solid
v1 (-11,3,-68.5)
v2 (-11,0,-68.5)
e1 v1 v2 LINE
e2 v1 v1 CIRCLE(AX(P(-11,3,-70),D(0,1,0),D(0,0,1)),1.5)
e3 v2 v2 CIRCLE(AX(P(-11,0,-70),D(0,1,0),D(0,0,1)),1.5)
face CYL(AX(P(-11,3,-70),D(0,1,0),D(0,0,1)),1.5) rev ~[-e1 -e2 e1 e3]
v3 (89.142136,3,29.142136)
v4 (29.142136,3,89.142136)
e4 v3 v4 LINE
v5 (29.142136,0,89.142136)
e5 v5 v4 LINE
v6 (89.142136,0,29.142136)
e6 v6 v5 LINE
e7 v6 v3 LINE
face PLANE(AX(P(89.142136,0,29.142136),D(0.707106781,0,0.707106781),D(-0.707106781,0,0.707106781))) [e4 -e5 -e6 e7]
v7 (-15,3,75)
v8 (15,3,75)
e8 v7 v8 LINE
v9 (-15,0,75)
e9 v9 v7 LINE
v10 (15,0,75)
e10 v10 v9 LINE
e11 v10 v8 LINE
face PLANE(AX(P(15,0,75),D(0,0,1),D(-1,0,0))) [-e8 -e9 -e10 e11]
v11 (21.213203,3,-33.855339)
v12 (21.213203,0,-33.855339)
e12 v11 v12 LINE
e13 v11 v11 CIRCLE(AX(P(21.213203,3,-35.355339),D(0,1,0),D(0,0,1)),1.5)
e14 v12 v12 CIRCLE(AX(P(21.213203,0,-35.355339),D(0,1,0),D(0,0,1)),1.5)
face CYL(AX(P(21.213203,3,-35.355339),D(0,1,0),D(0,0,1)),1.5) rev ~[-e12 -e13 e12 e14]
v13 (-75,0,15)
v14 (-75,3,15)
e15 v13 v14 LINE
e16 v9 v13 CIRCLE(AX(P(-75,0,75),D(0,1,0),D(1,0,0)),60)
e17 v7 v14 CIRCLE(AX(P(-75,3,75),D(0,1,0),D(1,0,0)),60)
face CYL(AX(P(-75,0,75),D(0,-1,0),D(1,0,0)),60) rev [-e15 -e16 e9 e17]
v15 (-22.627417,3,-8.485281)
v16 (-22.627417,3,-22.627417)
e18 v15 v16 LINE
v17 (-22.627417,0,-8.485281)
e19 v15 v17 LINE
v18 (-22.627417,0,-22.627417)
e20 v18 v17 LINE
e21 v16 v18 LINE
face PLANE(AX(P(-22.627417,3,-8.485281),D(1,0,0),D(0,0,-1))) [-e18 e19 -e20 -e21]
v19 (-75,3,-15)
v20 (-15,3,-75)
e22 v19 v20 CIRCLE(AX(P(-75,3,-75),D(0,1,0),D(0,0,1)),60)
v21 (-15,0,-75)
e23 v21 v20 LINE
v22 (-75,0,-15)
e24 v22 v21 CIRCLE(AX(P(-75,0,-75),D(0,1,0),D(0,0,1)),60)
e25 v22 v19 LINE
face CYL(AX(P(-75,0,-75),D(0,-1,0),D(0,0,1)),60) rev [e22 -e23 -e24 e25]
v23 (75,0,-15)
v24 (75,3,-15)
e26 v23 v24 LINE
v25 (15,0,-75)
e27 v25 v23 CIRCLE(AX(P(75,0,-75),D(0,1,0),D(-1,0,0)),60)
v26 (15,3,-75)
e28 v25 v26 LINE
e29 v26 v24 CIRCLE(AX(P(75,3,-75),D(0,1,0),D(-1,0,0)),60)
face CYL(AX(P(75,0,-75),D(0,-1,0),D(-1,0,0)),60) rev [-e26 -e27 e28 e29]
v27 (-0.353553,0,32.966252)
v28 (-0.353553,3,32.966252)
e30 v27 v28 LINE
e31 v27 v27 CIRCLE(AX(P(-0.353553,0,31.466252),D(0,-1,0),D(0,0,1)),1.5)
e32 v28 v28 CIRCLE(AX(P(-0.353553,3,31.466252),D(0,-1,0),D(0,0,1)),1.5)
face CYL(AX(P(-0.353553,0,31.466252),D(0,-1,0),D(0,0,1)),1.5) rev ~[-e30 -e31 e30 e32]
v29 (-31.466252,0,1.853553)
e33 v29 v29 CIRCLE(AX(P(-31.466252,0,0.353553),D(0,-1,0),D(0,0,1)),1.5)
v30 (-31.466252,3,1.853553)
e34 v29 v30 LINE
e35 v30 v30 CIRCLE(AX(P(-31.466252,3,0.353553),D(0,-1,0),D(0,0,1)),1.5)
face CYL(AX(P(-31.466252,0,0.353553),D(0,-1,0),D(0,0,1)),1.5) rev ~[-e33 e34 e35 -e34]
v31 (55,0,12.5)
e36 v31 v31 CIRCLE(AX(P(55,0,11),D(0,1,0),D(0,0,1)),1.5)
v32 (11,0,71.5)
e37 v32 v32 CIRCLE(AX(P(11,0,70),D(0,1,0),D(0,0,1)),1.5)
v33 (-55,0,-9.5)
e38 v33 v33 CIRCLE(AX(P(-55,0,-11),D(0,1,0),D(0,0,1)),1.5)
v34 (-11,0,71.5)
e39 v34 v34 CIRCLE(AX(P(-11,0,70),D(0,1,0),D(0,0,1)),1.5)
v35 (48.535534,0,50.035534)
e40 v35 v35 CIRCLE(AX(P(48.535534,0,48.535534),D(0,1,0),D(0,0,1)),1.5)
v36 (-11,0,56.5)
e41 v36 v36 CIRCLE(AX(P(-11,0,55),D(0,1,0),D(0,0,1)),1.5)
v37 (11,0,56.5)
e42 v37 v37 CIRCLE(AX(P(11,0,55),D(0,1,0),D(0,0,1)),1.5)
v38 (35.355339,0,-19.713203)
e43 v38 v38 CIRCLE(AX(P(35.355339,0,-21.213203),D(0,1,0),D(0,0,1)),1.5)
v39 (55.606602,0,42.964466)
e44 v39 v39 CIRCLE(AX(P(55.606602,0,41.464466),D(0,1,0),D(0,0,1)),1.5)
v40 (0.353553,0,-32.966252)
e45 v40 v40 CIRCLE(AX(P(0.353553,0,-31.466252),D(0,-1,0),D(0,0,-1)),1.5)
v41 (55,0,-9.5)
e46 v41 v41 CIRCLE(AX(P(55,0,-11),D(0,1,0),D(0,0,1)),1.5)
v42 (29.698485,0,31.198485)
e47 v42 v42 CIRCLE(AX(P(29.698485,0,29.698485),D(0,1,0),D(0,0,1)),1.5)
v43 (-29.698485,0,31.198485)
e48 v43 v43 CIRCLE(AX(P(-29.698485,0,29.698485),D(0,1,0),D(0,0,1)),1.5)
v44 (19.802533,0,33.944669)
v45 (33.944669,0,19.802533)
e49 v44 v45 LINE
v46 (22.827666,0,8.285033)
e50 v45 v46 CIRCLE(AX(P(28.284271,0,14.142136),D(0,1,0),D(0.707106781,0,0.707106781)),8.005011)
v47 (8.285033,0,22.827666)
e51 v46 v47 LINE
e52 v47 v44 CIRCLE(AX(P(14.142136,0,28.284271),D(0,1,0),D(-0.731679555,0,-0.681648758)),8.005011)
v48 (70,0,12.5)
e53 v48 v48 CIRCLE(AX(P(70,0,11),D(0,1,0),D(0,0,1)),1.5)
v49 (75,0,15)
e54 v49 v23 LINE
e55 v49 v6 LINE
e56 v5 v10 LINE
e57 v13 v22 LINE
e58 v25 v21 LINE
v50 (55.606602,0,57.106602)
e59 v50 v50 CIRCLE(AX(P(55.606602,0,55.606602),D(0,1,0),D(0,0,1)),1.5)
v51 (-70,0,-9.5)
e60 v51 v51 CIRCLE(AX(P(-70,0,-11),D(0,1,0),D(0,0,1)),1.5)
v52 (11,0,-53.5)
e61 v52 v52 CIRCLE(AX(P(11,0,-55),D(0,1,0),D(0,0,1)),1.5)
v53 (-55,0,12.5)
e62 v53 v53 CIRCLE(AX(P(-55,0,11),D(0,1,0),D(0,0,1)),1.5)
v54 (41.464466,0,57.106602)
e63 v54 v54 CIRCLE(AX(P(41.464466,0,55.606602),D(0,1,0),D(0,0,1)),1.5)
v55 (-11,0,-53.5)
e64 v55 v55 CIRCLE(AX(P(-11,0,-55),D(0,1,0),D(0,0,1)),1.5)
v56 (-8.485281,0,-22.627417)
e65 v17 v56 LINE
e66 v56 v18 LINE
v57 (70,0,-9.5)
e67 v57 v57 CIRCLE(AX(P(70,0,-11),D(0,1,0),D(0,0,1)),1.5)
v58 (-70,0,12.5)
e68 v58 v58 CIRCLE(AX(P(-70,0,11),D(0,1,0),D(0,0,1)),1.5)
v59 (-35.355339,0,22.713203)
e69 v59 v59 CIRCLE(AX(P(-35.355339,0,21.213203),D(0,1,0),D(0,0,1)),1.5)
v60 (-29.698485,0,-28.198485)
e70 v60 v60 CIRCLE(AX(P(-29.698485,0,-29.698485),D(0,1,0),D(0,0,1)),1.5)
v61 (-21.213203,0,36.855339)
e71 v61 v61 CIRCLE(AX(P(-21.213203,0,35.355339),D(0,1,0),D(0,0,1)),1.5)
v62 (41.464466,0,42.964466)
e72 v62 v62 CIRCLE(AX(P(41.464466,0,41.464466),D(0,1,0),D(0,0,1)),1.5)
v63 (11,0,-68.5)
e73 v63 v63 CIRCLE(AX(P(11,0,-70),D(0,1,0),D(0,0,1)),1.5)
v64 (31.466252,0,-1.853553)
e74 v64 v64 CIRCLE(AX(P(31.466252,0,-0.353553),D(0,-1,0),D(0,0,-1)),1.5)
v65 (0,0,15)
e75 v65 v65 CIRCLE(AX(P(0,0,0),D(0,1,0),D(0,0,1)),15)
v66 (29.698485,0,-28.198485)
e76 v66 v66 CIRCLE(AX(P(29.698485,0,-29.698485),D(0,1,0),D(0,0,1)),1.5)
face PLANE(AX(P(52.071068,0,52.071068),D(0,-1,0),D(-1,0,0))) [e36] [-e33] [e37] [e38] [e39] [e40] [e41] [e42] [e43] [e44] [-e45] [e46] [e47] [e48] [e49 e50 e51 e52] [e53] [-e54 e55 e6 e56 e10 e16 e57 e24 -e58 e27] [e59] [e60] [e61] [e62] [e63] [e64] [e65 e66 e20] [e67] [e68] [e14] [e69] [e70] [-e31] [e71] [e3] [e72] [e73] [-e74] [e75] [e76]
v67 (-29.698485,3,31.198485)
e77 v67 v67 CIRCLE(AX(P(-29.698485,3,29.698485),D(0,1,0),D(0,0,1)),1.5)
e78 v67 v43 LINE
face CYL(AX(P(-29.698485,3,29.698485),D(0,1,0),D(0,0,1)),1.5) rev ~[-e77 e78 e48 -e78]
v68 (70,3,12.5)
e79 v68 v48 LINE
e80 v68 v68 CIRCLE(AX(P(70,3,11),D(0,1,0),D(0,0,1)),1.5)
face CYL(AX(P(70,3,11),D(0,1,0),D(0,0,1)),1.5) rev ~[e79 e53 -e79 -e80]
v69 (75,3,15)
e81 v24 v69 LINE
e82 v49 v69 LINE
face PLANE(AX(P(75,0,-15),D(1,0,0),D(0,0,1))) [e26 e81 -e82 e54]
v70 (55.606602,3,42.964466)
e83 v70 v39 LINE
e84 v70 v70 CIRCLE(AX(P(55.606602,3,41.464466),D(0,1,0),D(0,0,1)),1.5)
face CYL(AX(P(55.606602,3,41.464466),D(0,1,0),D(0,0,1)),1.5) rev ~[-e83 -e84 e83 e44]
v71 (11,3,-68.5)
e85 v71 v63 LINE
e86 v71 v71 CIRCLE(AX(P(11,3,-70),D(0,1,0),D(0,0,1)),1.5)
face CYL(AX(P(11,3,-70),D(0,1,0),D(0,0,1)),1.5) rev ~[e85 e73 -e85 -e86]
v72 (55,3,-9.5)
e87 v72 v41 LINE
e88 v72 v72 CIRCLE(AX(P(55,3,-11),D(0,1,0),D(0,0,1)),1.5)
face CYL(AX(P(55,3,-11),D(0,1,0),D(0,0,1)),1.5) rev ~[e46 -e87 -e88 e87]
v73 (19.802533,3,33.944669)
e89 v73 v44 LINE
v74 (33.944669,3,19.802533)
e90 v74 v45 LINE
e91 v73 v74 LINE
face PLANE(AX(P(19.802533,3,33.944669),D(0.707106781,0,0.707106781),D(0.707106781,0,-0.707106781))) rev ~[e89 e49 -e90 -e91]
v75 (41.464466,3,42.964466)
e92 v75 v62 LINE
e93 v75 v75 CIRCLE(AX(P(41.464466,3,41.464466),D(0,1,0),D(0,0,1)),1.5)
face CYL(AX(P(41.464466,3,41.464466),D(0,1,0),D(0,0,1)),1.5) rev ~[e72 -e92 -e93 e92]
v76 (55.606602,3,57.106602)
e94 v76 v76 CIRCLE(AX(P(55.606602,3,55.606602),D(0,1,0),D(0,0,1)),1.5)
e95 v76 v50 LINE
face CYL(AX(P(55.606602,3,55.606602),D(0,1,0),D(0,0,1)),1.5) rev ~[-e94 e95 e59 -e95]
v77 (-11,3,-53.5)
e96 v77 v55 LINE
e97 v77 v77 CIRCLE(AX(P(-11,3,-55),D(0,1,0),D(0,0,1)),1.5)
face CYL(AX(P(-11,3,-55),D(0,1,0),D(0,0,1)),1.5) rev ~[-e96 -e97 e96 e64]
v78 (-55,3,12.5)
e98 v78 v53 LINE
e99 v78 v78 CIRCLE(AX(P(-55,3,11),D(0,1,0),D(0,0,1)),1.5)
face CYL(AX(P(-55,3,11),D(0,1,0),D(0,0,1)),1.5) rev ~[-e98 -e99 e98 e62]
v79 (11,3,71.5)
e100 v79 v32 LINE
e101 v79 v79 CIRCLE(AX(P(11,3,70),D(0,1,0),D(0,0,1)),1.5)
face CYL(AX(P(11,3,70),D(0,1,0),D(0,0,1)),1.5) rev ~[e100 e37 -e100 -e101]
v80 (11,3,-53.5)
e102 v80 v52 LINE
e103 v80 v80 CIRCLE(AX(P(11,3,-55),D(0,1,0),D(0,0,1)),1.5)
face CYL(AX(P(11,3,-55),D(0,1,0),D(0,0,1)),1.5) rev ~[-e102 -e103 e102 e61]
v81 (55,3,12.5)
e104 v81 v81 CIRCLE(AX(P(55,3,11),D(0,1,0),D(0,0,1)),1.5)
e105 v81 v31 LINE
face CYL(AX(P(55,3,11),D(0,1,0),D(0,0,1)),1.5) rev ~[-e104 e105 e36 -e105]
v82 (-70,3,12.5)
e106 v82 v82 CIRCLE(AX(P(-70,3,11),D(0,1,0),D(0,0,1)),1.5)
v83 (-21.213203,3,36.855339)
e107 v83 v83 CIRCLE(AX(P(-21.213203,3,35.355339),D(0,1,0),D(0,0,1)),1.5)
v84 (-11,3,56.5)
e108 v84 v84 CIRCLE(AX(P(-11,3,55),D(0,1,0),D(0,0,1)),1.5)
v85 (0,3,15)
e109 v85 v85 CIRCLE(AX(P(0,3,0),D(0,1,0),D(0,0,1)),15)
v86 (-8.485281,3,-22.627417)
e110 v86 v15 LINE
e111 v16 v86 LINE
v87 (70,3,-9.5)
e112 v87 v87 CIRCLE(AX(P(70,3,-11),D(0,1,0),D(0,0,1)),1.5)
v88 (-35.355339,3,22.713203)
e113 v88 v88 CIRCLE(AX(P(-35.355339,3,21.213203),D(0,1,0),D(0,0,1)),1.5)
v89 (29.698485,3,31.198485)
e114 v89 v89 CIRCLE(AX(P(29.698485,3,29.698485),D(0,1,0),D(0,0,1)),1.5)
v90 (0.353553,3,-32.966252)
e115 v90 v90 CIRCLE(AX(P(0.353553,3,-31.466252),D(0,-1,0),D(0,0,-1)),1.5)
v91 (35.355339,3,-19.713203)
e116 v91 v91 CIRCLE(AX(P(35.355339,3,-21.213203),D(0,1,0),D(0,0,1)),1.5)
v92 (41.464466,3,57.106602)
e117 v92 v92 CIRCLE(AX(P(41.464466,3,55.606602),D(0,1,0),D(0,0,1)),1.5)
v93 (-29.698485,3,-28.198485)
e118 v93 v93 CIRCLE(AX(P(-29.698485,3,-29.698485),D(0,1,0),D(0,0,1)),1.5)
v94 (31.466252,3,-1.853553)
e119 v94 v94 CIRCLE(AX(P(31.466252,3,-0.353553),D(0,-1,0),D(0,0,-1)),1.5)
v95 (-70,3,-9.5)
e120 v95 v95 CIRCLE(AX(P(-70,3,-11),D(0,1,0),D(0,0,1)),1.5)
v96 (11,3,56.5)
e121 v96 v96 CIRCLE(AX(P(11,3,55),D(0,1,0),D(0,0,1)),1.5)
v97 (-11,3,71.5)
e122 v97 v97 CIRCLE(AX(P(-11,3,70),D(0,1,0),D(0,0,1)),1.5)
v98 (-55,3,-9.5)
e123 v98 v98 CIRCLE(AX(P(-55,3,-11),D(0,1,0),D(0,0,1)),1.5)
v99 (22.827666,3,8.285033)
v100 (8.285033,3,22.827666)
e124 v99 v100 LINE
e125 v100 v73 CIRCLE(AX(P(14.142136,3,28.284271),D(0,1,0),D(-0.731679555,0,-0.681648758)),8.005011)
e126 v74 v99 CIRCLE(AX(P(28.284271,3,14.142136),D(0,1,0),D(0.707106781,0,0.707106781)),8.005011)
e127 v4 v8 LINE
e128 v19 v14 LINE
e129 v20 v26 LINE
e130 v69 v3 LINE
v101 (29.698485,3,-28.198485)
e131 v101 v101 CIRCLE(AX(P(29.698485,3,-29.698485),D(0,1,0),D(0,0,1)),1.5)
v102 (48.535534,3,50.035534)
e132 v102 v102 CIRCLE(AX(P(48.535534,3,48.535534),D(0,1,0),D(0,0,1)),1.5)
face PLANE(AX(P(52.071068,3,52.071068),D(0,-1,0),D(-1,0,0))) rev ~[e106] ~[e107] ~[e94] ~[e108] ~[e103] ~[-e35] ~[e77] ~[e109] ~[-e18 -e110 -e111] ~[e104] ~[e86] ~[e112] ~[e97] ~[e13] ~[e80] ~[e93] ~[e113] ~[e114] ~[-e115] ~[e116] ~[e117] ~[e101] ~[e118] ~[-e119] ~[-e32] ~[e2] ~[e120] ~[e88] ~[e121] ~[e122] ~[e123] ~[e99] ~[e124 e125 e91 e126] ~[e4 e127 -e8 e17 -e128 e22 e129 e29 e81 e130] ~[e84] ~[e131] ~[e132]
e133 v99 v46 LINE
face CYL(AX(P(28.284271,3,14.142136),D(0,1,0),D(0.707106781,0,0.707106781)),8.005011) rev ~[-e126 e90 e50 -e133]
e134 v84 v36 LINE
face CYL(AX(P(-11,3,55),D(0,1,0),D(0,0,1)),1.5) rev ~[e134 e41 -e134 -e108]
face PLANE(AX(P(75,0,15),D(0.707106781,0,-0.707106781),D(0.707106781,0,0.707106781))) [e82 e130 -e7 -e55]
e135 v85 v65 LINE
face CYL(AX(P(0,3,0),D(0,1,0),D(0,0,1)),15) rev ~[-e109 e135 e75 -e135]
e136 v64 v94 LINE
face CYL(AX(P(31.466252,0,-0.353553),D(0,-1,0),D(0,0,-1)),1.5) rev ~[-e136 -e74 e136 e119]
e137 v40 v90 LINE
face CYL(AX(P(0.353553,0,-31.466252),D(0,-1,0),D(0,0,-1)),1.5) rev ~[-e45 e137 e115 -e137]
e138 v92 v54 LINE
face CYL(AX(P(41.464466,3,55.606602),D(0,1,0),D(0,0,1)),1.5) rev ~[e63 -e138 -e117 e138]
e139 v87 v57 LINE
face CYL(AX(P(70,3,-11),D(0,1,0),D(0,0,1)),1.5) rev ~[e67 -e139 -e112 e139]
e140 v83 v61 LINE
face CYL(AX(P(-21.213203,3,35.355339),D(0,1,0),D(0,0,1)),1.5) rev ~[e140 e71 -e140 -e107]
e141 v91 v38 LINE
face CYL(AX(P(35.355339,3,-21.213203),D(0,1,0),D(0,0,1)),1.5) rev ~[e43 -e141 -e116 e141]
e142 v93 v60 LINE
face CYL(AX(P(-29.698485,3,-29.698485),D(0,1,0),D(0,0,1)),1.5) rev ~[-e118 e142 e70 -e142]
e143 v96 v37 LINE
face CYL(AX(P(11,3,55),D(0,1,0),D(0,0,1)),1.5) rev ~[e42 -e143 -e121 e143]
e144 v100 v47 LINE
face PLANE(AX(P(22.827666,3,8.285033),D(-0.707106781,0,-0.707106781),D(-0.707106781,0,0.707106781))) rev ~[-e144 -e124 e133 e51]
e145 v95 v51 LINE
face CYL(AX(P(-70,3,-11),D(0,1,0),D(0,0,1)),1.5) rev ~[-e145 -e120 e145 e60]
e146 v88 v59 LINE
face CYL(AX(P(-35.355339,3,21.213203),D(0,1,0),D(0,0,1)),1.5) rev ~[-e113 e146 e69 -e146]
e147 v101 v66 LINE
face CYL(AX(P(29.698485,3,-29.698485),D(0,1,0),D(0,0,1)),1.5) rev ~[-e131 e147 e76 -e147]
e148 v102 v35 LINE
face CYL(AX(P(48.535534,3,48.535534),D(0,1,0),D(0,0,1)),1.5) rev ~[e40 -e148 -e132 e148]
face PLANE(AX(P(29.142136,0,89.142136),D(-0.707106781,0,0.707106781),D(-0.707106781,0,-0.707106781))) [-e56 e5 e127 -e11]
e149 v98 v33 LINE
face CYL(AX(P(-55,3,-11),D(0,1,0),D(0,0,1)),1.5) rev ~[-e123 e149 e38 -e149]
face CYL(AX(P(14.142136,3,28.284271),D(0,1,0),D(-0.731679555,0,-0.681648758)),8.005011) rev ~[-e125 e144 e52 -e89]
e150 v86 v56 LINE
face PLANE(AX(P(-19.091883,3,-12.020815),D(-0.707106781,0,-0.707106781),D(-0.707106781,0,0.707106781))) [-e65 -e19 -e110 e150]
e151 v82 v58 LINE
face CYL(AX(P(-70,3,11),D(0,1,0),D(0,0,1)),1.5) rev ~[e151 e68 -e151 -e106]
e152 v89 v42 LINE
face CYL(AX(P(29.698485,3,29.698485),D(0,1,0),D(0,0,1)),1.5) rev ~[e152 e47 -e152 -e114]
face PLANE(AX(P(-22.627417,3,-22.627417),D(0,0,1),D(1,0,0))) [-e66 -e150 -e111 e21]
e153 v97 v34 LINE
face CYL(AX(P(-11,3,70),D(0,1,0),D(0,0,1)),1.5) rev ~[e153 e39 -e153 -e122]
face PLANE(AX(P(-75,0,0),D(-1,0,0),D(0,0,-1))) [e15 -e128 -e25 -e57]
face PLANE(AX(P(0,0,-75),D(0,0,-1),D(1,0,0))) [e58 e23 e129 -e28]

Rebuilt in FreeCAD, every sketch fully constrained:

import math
import FreeCAD as App
import Part
import Sketcher
from FreeCAD import Vector
Q = App.Units.Quantity


def add_polygon(sketch, points):
    """Adds a closed chain of lines whose ends are joined by coincident constraints."""
    first, n = sketch.GeometryCount, len(points)
    for a, b in zip(points, points[1:] + points[:1]):
        sketch.addGeometry(Part.LineSegment(App.Vector(*a, 0), App.Vector(*b, 0)), False)
    for i in range(n):
        sketch.addConstraint(Sketcher.Constraint("Coincident", first + i, 2, first + (i + 1) % n, 1))

doc = App.newDocument("Part")
body = doc.addObject("PartDesign::Body", "Body")

# Sketch on XZ plane
sketch1 = body.newObject("Sketcher::SketchObject", "Sketch")
sketch1.AttachmentSupport = (doc.getObject("XZ_Plane"), [""])
sketch1.MapMode = "FlatFace"
sketch1.addGeometry(Part.ArcOfCircle(Part.Circle(Vector(75, 75, 0), Vector(0, 0, 1), 60), math.radians(-180), math.radians(-90)), False)
sketch1.addGeometry(Part.LineSegment(Vector(75, 15, 0), Vector(75, -15, 0)), False)
sketch1.addGeometry(Part.ArcOfCircle(Part.Circle(Vector(75, -75, 0), Vector(0, 0, 1), 60), math.radians(90), math.radians(180)), False)
sketch1.addGeometry(Part.LineSegment(Vector(15, -75, 0), Vector(-15, -75, 0)), False)
sketch1.addGeometry(Part.ArcOfCircle(Part.Circle(Vector(-75, -75, 0), Vector(0, 0, 1), 60), math.radians(0), math.radians(90)), False)
sketch1.addGeometry(Part.LineSegment(Vector(-75, -15, 0), Vector(-75, 15, 0)), False)
sketch1.addGeometry(Part.ArcOfCircle(Part.Circle(Vector(-75, 75, 0), Vector(0, 0, 1), 60), math.radians(-90), math.radians(0)), False)
sketch1.addGeometry(Part.LineSegment(Vector(-15, 75, 0), Vector(15, 75, 0)), False)
sketch1.addGeometry(Part.Circle(Vector(11, 70, 0), Vector(0, 0, 1), 1.25), False)
sketch1.addGeometry(Part.Circle(Vector(70, 11, 0), Vector(0, 0, 1), 1.25), False)
sketch1.addGeometry(Part.Circle(Vector(11, -70, 0), Vector(0, 0, 1), 1.25), False)
sketch1.addGeometry(Part.Circle(Vector(70, -11, 0), Vector(0, 0, 1), 1.25), False)
sketch1.addGeometry(Part.Circle(Vector(-70, 11, 0), Vector(0, 0, 1), 1.25), False)
sketch1.addGeometry(Part.Circle(Vector(-11, 70, 0), Vector(0, 0, 1), 1.25), False)
sketch1.addGeometry(Part.Circle(Vector(-70, -11, 0), Vector(0, 0, 1), 1.25), False)
sketch1.addGeometry(Part.Circle(Vector(-11, -70, 0), Vector(0, 0, 1), 1.25), False)
sketch1.addConstraint(Sketcher.Constraint("Coincident", 0, 2, 1, 1))
sketch1.addConstraint(Sketcher.Constraint("Coincident", 1, 2, 2, 1))
sketch1.addConstraint(Sketcher.Constraint("Coincident", 2, 2, 3, 1))
sketch1.addConstraint(Sketcher.Constraint("Coincident", 3, 2, 4, 1))
sketch1.addConstraint(Sketcher.Constraint("Coincident", 4, 2, 5, 1))
sketch1.addConstraint(Sketcher.Constraint("Coincident", 5, 2, 6, 1))
sketch1.addConstraint(Sketcher.Constraint("Coincident", 6, 2, 7, 1))
sketch1.addConstraint(Sketcher.Constraint("Coincident", 7, 2, 0, 1))
sketch1.addConstraint(Sketcher.Constraint("Vertical", 1))
sketch1.addConstraint(Sketcher.Constraint("Horizontal", 3))
sketch1.addConstraint(Sketcher.Constraint("Vertical", 5))
sketch1.addConstraint(Sketcher.Constraint("Horizontal", 7))
sketch1.addConstraint(Sketcher.Constraint("Equal", 0, 2))
sketch1.addConstraint(Sketcher.Constraint("Equal", 2, 4))
sketch1.addConstraint(Sketcher.Constraint("Equal", 4, 6))
sketch1.addConstraint(Sketcher.Constraint("Equal", 8, 9))
sketch1.addConstraint(Sketcher.Constraint("Equal", 9, 10))
sketch1.addConstraint(Sketcher.Constraint("Equal", 10, 11))
sketch1.addConstraint(Sketcher.Constraint("Equal", 11, 12))
sketch1.addConstraint(Sketcher.Constraint("Equal", 12, 13))
sketch1.addConstraint(Sketcher.Constraint("Equal", 13, 14))
sketch1.addConstraint(Sketcher.Constraint("Equal", 14, 15))
sketch1.addConstraint(Sketcher.Constraint("Symmetric", 0, 3, 4, 3, -1, 1))
sketch1.addConstraint(Sketcher.Constraint("Symmetric", 2, 3, 6, 3, -1, 1))
sketch1.addConstraint(Sketcher.Constraint("Symmetric", 11, 3, 12, 3, -1, 1))
sketch1.addConstraint(Sketcher.Constraint("Symmetric", 10, 3, 13, 3, -1, 1))
sketch1.addConstraint(Sketcher.Constraint("Symmetric", 9, 3, 14, 3, -1, 1))
sketch1.addConstraint(Sketcher.Constraint("Symmetric", 8, 3, 15, 3, -1, 1))
sketch1.addConstraint(Sketcher.Constraint("Symmetric", 2, 3, 4, 3, -2))
sketch1.addConstraint(Sketcher.Constraint("Symmetric", 9, 3, 12, 3, -2))
sketch1.addConstraint(Sketcher.Constraint("Symmetric", 8, 3, 13, 3, -2))
sketch1.addConstraint(Sketcher.Constraint("Horizontal", 4, 3, 2, 2))
sketch1.addConstraint(Sketcher.Constraint("Horizontal", 0, 3, 6, 2))
sketch1.addConstraint(Sketcher.Constraint("Vertical", 2, 3, 0, 2))
sketch1.addConstraint(Sketcher.Constraint("Vertical", 6, 3, 4, 2))
sketch1.addConstraint(Sketcher.Constraint("Equal", 7, 1))
sketch1.addConstraint(Sketcher.Constraint("Radius", 0, Q("60 mm")))
sketch1.addConstraint(Sketcher.Constraint("Diameter", 8, Q("2.5 mm")))
sketch1.addConstraint(Sketcher.Constraint("DistanceX", 3, 2, 3, 1, Q("30 mm")))
sketch1.addConstraint(Sketcher.Constraint("DistanceX", -1, 1, 8, 3, Q("11 mm")))
sketch1.addConstraint(Sketcher.Constraint("DistanceY", -1, 1, 8, 3, Q("70 mm")))
sketch1.addConstraint(Sketcher.Constraint("DistanceX", -1, 1, 9, 3, Q("70 mm")))
sketch1.addConstraint(Sketcher.Constraint("DistanceY", -1, 1, 9, 3, Q("11 mm")))
pad1 = body.newObject("PartDesign::Pad", "Pad")
pad1.Profile = sketch1
pad1.Length = 3
pad1.Reversed = True

# Sketch on XZ plane
sketch2 = body.newObject("Sketcher::SketchObject", "Sketch001")
sketch2.AttachmentSupport = (doc.getObject("XZ_Plane"), [""])
sketch2.MapMode = "FlatFace"
sketch2.addGeometry(Part.Circle(Vector(0.353553, -31.466252, 0), Vector(0, 0, 1), 1.5), False)
sketch2.addGeometry(Part.Circle(Vector(31.466252, -0.353553, 0), Vector(0, 0, 1), 1.5), False)
sketch2.addGeometry(Part.Circle(Vector(-0.353553, 31.466252, 0), Vector(0, 0, 1), 1.5), False)
sketch2.addGeometry(Part.Circle(Vector(-31.466252, 0.353553, 0), Vector(0, 0, 1), 1.5), False)
sketch2.addConstraint(Sketcher.Constraint("Equal", 0, 1))
sketch2.addConstraint(Sketcher.Constraint("Equal", 1, 2))
sketch2.addConstraint(Sketcher.Constraint("Equal", 2, 3))
sketch2.addConstraint(Sketcher.Constraint("Symmetric", 0, 3, 2, 3, -1, 1))
sketch2.addConstraint(Sketcher.Constraint("Symmetric", 1, 3, 3, 3, -1, 1))
sketch2.addConstraint(Sketcher.Constraint("Diameter", 0, Q("3 mm")))
sketch2.addConstraint(Sketcher.Constraint("DistanceX", 0, 3, 1, 3, Q("31.112698 mm")))
sketch2.addConstraint(Sketcher.Constraint("DistanceY", 0, 3, 1, 3, Q("31.112698 mm")))
sketch2.addConstraint(Sketcher.Constraint("DistanceY", 0, 3, -1, 1, Q("31.466252 mm")))
sketch2.addConstraint(Sketcher.Constraint("DistanceX", -1, 1, 1, 3, Q("31.466252 mm")))
pocket1 = body.newObject("PartDesign::Pocket", "Pocket")
pocket1.Profile = sketch2
pocket1.Length = 3

# Sketch on XZ plane
sketch3 = body.newObject("Sketcher::SketchObject", "Sketch002")
sketch3.AttachmentSupport = (doc.getObject("XZ_Plane"), [""])
sketch3.MapMode = "FlatFace"
sketch3.AttachmentOffset = App.Placement(Vector(0, 0, -3), App.Rotation())
add_polygon(sketch3, [(-12.020815, -19.091883), (-22.627417, -22.627417), (-19.091883, -12.020815)])  # lines 0-2
sketch3.addConstraint(Sketcher.Constraint("Equal", 0, 1))
sketch3.addConstraint(Sketcher.Constraint("Angle", 2, Q("-45 deg")))
sketch3.addConstraint(Sketcher.Constraint("Distance", 2, Q("10 mm")))
sketch3.addConstraint(Sketcher.Constraint("DistanceY", 0, 2, 1, 2, Q("10.606602 mm")))
sketch3.addConstraint(Sketcher.Constraint("DistanceX", 0, 2, -1, 1, Q("22.627417 mm")))
sketch3.addConstraint(Sketcher.Constraint("DistanceY", 0, 2, -1, 1, Q("22.627417 mm")))
pocket2 = body.newObject("PartDesign::Pocket", "Pocket001")
pocket2.Profile = sketch3
pocket2.Length = 3
pocket2.Reversed = True

# Sketch on XZ plane
sketch4 = body.newObject("Sketcher::SketchObject", "Sketch003")
sketch4.AttachmentSupport = (doc.getObject("XZ_Plane"), [""])
sketch4.MapMode = "FlatFace"
sketch4.AttachmentOffset = App.Placement(Vector(0, 0, -3), App.Rotation())
sketch4.addGeometry(Part.ArcOfCircle(Part.Circle(Vector(28.284271, 14.142136, 0), Vector(0, 0, 1), 8.005011), math.radians(-132.972618), math.radians(45)), False)
sketch4.addGeometry(Part.LineSegment(Vector(22.827666, 8.285033, 0), Vector(8.285033, 22.827666, 0)), False)
sketch4.addGeometry(Part.ArcOfCircle(Part.Circle(Vector(14.142136, 28.284271, 0), Vector(0, 0, 1), 8.005011), math.radians(45), math.radians(222.972618)), False)
sketch4.addGeometry(Part.LineSegment(Vector(19.802533, 33.944669, 0), Vector(33.944669, 19.802533, 0)), False)
sketch4.addConstraint(Sketcher.Constraint("Coincident", 0, 1, 1, 1))
sketch4.addConstraint(Sketcher.Constraint("Coincident", 1, 2, 2, 2))
sketch4.addConstraint(Sketcher.Constraint("Tangent", 2, 1, 3, 1))
sketch4.addConstraint(Sketcher.Constraint("Tangent", 3, 2, 0, 2))
sketch4.addConstraint(Sketcher.Constraint("Equal", 0, 2))
sketch4.addConstraint(Sketcher.Constraint("Parallel", 1, 3))
sketch4.addConstraint(Sketcher.Constraint("Angle", 1, Q("135 deg")))
sketch4.addConstraint(Sketcher.Constraint("Distance", 3, Q("20 mm")))
sketch4.addConstraint(Sketcher.Constraint("Radius", 0, Q("8.005011 mm")))
sketch4.addConstraint(Sketcher.Constraint("DistanceX", 1, 2, 2, 1, Q("11.5175 mm")))
sketch4.addConstraint(Sketcher.Constraint("DistanceX", -1, 1, 0, 3, Q("28.284271 mm")))
sketch4.addConstraint(Sketcher.Constraint("DistanceY", -1, 1, 2, 3, Q("28.284271 mm")))
pocket3 = body.newObject("PartDesign::Pocket", "Pocket002")
pocket3.Profile = sketch4
pocket3.Length = 3
pocket3.Reversed = True

# Sketch on XZ plane
sketch5 = body.newObject("Sketcher::SketchObject", "Sketch004")
sketch5.AttachmentSupport = (doc.getObject("XZ_Plane"), [""])
sketch5.MapMode = "FlatFace"
sketch5.AttachmentOffset = App.Placement(Vector(0, 0, -3), App.Rotation())
add_polygon(sketch5, [(-22.627417, -22.627417), (-22.627417, -8.485281), (-19.091883, -12.020815)])  # lines 0-2
add_polygon(sketch5, [(-22.627417, -22.627417), (-12.020815, -19.091883), (-8.485281, -22.627417)])  # lines 3-5
sketch5.addConstraint(Sketcher.Constraint("Vertical", 0))
sketch5.addConstraint(Sketcher.Constraint("Horizontal", 5))
sketch5.addConstraint(Sketcher.Constraint("Coincident", 5, 2, 2, 2))
sketch5.addConstraint(Sketcher.Constraint("Parallel", 1, 4))
sketch5.addConstraint(Sketcher.Constraint("Equal", 5, 0))
sketch5.addConstraint(Sketcher.Constraint("Equal", 2, 3))
sketch5.addConstraint(Sketcher.Constraint("Equal", 1, 4))
sketch5.addConstraint(Sketcher.Constraint("Distance", 1, Q("5 mm")))
sketch5.addConstraint(Sketcher.Constraint("DistanceY", 2, 2, 1, 2, Q("10.606602 mm")))
sketch5.addConstraint(Sketcher.Constraint("DistanceY", 0, 2, -1, 1, Q("8.485281 mm")))
sketch5.addConstraint(Sketcher.Constraint("DistanceX", 4, 2, -1, 1, Q("8.485281 mm")))
pocket4 = body.newObject("PartDesign::Pocket", "Pocket003")
pocket4.Profile = sketch5
pocket4.Length = 10
pocket4.Reversed = True

# Sketch on XZ plane
sketch6 = body.newObject("Sketcher::SketchObject", "Sketch005")
sketch6.AttachmentSupport = (doc.getObject("XZ_Plane"), [""])
sketch6.MapMode = "FlatFace"
sketch6.AttachmentOffset = App.Placement(Vector(0, 0, -3), App.Rotation())
sketch6.addGeometry(Part.Circle(Vector(-35.355339, 21.213203, 0), Vector(0, 0, 1), 1.5), False)
sketch6.addGeometry(Part.Circle(Vector(-21.213203, 35.355339, 0), Vector(0, 0, 1), 1.5), False)
sketch6.addGeometry(Part.Circle(Vector(35.355339, -21.213203, 0), Vector(0, 0, 1), 1.5), False)
sketch6.addGeometry(Part.Circle(Vector(21.213203, -35.355339, 0), Vector(0, 0, 1), 1.5), False)
sketch6.addConstraint(Sketcher.Constraint("Equal", 0, 1))
sketch6.addConstraint(Sketcher.Constraint("Equal", 1, 2))
sketch6.addConstraint(Sketcher.Constraint("Equal", 2, 3))
sketch6.addConstraint(Sketcher.Constraint("Symmetric", 0, 3, 2, 3, -1, 1))
sketch6.addConstraint(Sketcher.Constraint("Symmetric", 1, 3, 3, 3, -1, 1))
sketch6.addConstraint(Sketcher.Constraint("Diameter", 0, Q("3 mm")))
sketch6.addConstraint(Sketcher.Constraint("DistanceX", 0, 3, -1, 1, Q("35.355339 mm")))
sketch6.addConstraint(Sketcher.Constraint("DistanceY", -1, 1, 1, 3, Q("35.355339 mm")))
sketch6.addConstraint(Sketcher.Constraint("DistanceY", -1, 1, 0, 3, Q("21.213203 mm")))
sketch6.addConstraint(Sketcher.Constraint("DistanceX", 1, 3, -1, 1, Q("21.213203 mm")))
pocket5 = body.newObject("PartDesign::Pocket", "Pocket004")
pocket5.Profile = sketch6
pocket5.Length = 10
pocket5.Reversed = True

# Sketch on XZ plane
sketch7 = body.newObject("Sketcher::SketchObject", "Sketch006")
sketch7.AttachmentSupport = (doc.getObject("XZ_Plane"), [""])
sketch7.MapMode = "FlatFace"
sketch7.AttachmentOffset = App.Placement(Vector(0, 0, -3), App.Rotation())
sketch7.addGeometry(Part.Circle(Vector(-29.698485, -29.698485, 0), Vector(0, 0, 1), 1.5), False)
sketch7.addGeometry(Part.Circle(Vector(29.698485, -29.698485, 0), Vector(0, 0, 1), 1.5), False)
sketch7.addGeometry(Part.Circle(Vector(29.698485, 29.698485, 0), Vector(0, 0, 1), 1.5), False)
sketch7.addGeometry(Part.Circle(Vector(-29.698485, 29.698485, 0), Vector(0, 0, 1), 1.5), False)
sketch7.addConstraint(Sketcher.Constraint("Equal", 0, 1))
sketch7.addConstraint(Sketcher.Constraint("Equal", 1, 2))
sketch7.addConstraint(Sketcher.Constraint("Equal", 2, 3))
sketch7.addConstraint(Sketcher.Constraint("Symmetric", 0, 3, 2, 3, -1, 1))
sketch7.addConstraint(Sketcher.Constraint("Symmetric", 1, 3, 3, 3, -1, 1))
sketch7.addConstraint(Sketcher.Constraint("Symmetric", 0, 3, 1, 3, -2))
sketch7.addConstraint(Sketcher.Constraint("Diameter", 0, Q("3 mm")))
sketch7.addConstraint(Sketcher.Constraint("DistanceX", 0, 3, 1, 3, Q("59.39697 mm")))
sketch7.addConstraint(Sketcher.Constraint("DistanceY", 1, 3, 2, 3, Q("59.39697 mm")))
pocket6 = body.newObject("PartDesign::Pocket", "Pocket005")
pocket6.Profile = sketch7
pocket6.Length = 10
pocket6.Reversed = True

# Sketch on XZ plane
sketch8 = body.newObject("Sketcher::SketchObject", "Sketch007")
sketch8.AttachmentSupport = (doc.getObject("XZ_Plane"), [""])
sketch8.MapMode = "FlatFace"
sketch8.AttachmentOffset = App.Placement(Vector(0, 0, -3), App.Rotation())
sketch8.addGeometry(Part.Circle(Vector(-11, -55, 0), Vector(0, 0, 1), 1.5), False)
sketch8.addGeometry(Part.Circle(Vector(11, -55, 0), Vector(0, 0, 1), 1.5), False)
sketch8.addGeometry(Part.Circle(Vector(55, -11, 0), Vector(0, 0, 1), 1.5), False)
sketch8.addGeometry(Part.Circle(Vector(55, 11, 0), Vector(0, 0, 1), 1.5), False)
sketch8.addGeometry(Part.Circle(Vector(11, 55, 0), Vector(0, 0, 1), 1.5), False)
sketch8.addGeometry(Part.Circle(Vector(-11, 55, 0), Vector(0, 0, 1), 1.5), False)
sketch8.addGeometry(Part.Circle(Vector(-55, 11, 0), Vector(0, 0, 1), 1.5), False)
sketch8.addGeometry(Part.Circle(Vector(-55, -11, 0), Vector(0, 0, 1), 1.5), False)
sketch8.addConstraint(Sketcher.Constraint("Equal", 0, 1))
sketch8.addConstraint(Sketcher.Constraint("Equal", 1, 2))
sketch8.addConstraint(Sketcher.Constraint("Equal", 2, 3))
sketch8.addConstraint(Sketcher.Constraint("Equal", 3, 4))
sketch8.addConstraint(Sketcher.Constraint("Equal", 4, 5))
sketch8.addConstraint(Sketcher.Constraint("Equal", 5, 6))
sketch8.addConstraint(Sketcher.Constraint("Equal", 6, 7))
sketch8.addConstraint(Sketcher.Constraint("Symmetric", 0, 3, 4, 3, -1, 1))
sketch8.addConstraint(Sketcher.Constraint("Symmetric", 1, 3, 5, 3, -1, 1))
sketch8.addConstraint(Sketcher.Constraint("Symmetric", 2, 3, 6, 3, -1, 1))
sketch8.addConstraint(Sketcher.Constraint("Symmetric", 3, 3, 7, 3, -1, 1))
sketch8.addConstraint(Sketcher.Constraint("Symmetric", 0, 3, 1, 3, -2))
sketch8.addConstraint(Sketcher.Constraint("Symmetric", 3, 3, 6, 3, -2))
sketch8.addConstraint(Sketcher.Constraint("Diameter", 0, Q("3 mm")))
sketch8.addConstraint(Sketcher.Constraint("DistanceX", 0, 3, -1, 1, Q("11 mm")))
sketch8.addConstraint(Sketcher.Constraint("DistanceY", 0, 3, -1, 1, Q("55 mm")))
sketch8.addConstraint(Sketcher.Constraint("DistanceX", -1, 1, 2, 3, Q("55 mm")))
sketch8.addConstraint(Sketcher.Constraint("DistanceY", 2, 3, -1, 1, Q("11 mm")))
pocket7 = body.newObject("PartDesign::Pocket", "Pocket006")
pocket7.Profile = sketch8
pocket7.Length = 10
pocket7.Reversed = True

# Sketch on XZ plane
sketch9 = body.newObject("Sketcher::SketchObject", "Sketch008")
sketch9.AttachmentSupport = (doc.getObject("XZ_Plane"), [""])
sketch9.MapMode = "FlatFace"
sketch9.AttachmentOffset = App.Placement(Vector(0, 0, -3), App.Rotation())
sketch9.addGeometry(Part.Circle(Vector(0, 0, 0), Vector(0, 0, 1), 15), False)
sketch9.addConstraint(Sketcher.Constraint("Coincident", 0, 3, -1, 1))
sketch9.addConstraint(Sketcher.Constraint("Diameter", 0, Q("30 mm")))
pocket8 = body.newObject("PartDesign::Pocket", "Pocket007")
pocket8.Profile = sketch9
pocket8.Length = 10
pocket8.Reversed = True

# Sketch on XZ plane
sketch10 = body.newObject("Sketcher::SketchObject", "Sketch009")
sketch10.AttachmentSupport = (doc.getObject("XZ_Plane"), [""])
sketch10.MapMode = "FlatFace"
sketch10.addGeometry(Part.LineSegment(Vector(29.142136, 89.142136, 0), Vector(89.142136, 29.142136, 0)), False)
sketch10.addGeometry(Part.LineSegment(Vector(89.142136, 29.142136, 0), Vector(75, 15, 0)), False)
sketch10.addGeometry(Part.ArcOfCircle(Part.Circle(Vector(75, 75, 0), Vector(0, 0, 1), 60), math.radians(-180), math.radians(-90)), False)
sketch10.addGeometry(Part.LineSegment(Vector(15, 75, 0), Vector(29.142136, 89.142136, 0)), False)
sketch10.addConstraint(Sketcher.Constraint("Coincident", 0, 2, 1, 1))
sketch10.addConstraint(Sketcher.Constraint("Coincident", 1, 2, 2, 2))
sketch10.addConstraint(Sketcher.Constraint("Coincident", 2, 1, 3, 1))
sketch10.addConstraint(Sketcher.Constraint("Coincident", 3, 2, 0, 1))
sketch10.addConstraint(Sketcher.Constraint("Perpendicular", 0, 1))
sketch10.addConstraint(Sketcher.Constraint("Parallel", 1, 3))
sketch10.addConstraint(Sketcher.Constraint("Vertical", 2, 3, 1, 2))
sketch10.addConstraint(Sketcher.Constraint("Equal", 1, 3))
sketch10.addConstraint(Sketcher.Constraint("Radius", 2, Q("60 mm")))
sketch10.addConstraint(Sketcher.Constraint("Angle", 0, Q("-45 deg")))
sketch10.addConstraint(Sketcher.Constraint("Distance", 1, Q("20 mm")))
sketch10.addConstraint(Sketcher.Constraint("DistanceX", -1, 1, 2, 3, Q("75 mm")))
sketch10.addConstraint(Sketcher.Constraint("DistanceY", -1, 1, 2, 3, Q("75 mm")))
pad2 = body.newObject("PartDesign::Pad", "Pad001")
pad2.Profile = sketch10
pad2.Length = 3
pad2.Reversed = True

# Sketch on XZ plane
sketch11 = body.newObject("Sketcher::SketchObject", "Sketch010")
sketch11.AttachmentSupport = (doc.getObject("XZ_Plane"), [""])
sketch11.MapMode = "FlatFace"
sketch11.AttachmentOffset = App.Placement(Vector(0, 0, -3), App.Rotation())
sketch11.addGeometry(Part.Circle(Vector(11, -70, 0), Vector(0, 0, 1), 1.5), False)
sketch11.addGeometry(Part.Circle(Vector(-11, -70, 0), Vector(0, 0, 1), 1.5), False)
sketch11.addGeometry(Part.Circle(Vector(70, -11, 0), Vector(0, 0, 1), 1.5), False)
sketch11.addGeometry(Part.Circle(Vector(70, 11, 0), Vector(0, 0, 1), 1.5), False)
sketch11.addGeometry(Part.Circle(Vector(11, 70, 0), Vector(0, 0, 1), 1.5), False)
sketch11.addGeometry(Part.Circle(Vector(-11, 70, 0), Vector(0, 0, 1), 1.5), False)
sketch11.addGeometry(Part.Circle(Vector(-70, 11, 0), Vector(0, 0, 1), 1.5), False)
sketch11.addGeometry(Part.Circle(Vector(-70, -11, 0), Vector(0, 0, 1), 1.5), False)
sketch11.addConstraint(Sketcher.Constraint("Equal", 0, 1))
sketch11.addConstraint(Sketcher.Constraint("Equal", 1, 2))
sketch11.addConstraint(Sketcher.Constraint("Equal", 2, 3))
sketch11.addConstraint(Sketcher.Constraint("Equal", 3, 4))
sketch11.addConstraint(Sketcher.Constraint("Equal", 4, 5))
sketch11.addConstraint(Sketcher.Constraint("Equal", 5, 6))
sketch11.addConstraint(Sketcher.Constraint("Equal", 6, 7))
sketch11.addConstraint(Sketcher.Constraint("Symmetric", 1, 3, 4, 3, -1, 1))
sketch11.addConstraint(Sketcher.Constraint("Symmetric", 0, 3, 5, 3, -1, 1))
sketch11.addConstraint(Sketcher.Constraint("Symmetric", 2, 3, 6, 3, -1, 1))
sketch11.addConstraint(Sketcher.Constraint("Symmetric", 3, 3, 7, 3, -1, 1))
sketch11.addConstraint(Sketcher.Constraint("Symmetric", 0, 3, 1, 3, -2))
sketch11.addConstraint(Sketcher.Constraint("Symmetric", 3, 3, 6, 3, -2))
sketch11.addConstraint(Sketcher.Constraint("Diameter", 0, Q("3 mm")))
sketch11.addConstraint(Sketcher.Constraint("DistanceX", -1, 1, 0, 3, Q("11 mm")))
sketch11.addConstraint(Sketcher.Constraint("DistanceY", 0, 3, -1, 1, Q("70 mm")))
sketch11.addConstraint(Sketcher.Constraint("DistanceX", -1, 1, 2, 3, Q("70 mm")))
sketch11.addConstraint(Sketcher.Constraint("DistanceY", 2, 3, -1, 1, Q("11 mm")))
pocket9 = body.newObject("PartDesign::Pocket", "Pocket008")
pocket9.Profile = sketch11
pocket9.Length = 3
pocket9.Reversed = True

# Sketch on XZ plane
sketch12 = body.newObject("Sketcher::SketchObject", "Sketch011")
sketch12.AttachmentSupport = (doc.getObject("XZ_Plane"), [""])
sketch12.MapMode = "FlatFace"
sketch12.AttachmentOffset = App.Placement(Vector(0, 0, -3), App.Rotation())
sketch12.addGeometry(Part.Circle(Vector(48.535534, 48.535534, 0), Vector(0, 0, 1), 1.5), False)
sketch12.addGeometry(Part.Circle(Vector(55.606602, 41.464466, 0), Vector(0, 0, 1), 1.5), False)
sketch12.addGeometry(Part.Circle(Vector(55.606602, 55.606602, 0), Vector(0, 0, 1), 1.5), False)
sketch12.addGeometry(Part.Circle(Vector(41.464466, 55.606602, 0), Vector(0, 0, 1), 1.5), False)
sketch12.addGeometry(Part.Circle(Vector(41.464466, 41.464466, 0), Vector(0, 0, 1), 1.5), False)
sketch12.addConstraint(Sketcher.Constraint("Equal", 0, 1))
sketch12.addConstraint(Sketcher.Constraint("Equal", 1, 2))
sketch12.addConstraint(Sketcher.Constraint("Equal", 2, 3))
sketch12.addConstraint(Sketcher.Constraint("Equal", 3, 4))
sketch12.addConstraint(Sketcher.Constraint("Horizontal", 2, 3, 3, 3))
sketch12.addConstraint(Sketcher.Constraint("Horizontal", 1, 3, 4, 3))
sketch12.addConstraint(Sketcher.Constraint("Vertical", 1, 3, 2, 3))
sketch12.addConstraint(Sketcher.Constraint("Vertical", 3, 3, 4, 3))
sketch12.addConstraint(Sketcher.Constraint("Diameter", 0, Q("3 mm")))
sketch12.addConstraint(Sketcher.Constraint("DistanceX", -1, 1, 1, 3, Q("55.606602 mm")))
sketch12.addConstraint(Sketcher.Constraint("DistanceY", -1, 1, 2, 3, Q("55.606602 mm")))
sketch12.addConstraint(Sketcher.Constraint("DistanceX", -1, 1, 0, 3, Q("48.535534 mm")))
sketch12.addConstraint(Sketcher.Constraint("DistanceY", -1, 1, 0, 3, Q("48.535534 mm")))
sketch12.addConstraint(Sketcher.Constraint("DistanceY", -1, 1, 1, 3, Q("41.464466 mm")))
sketch12.addConstraint(Sketcher.Constraint("DistanceX", -1, 1, 3, 3, Q("41.464466 mm")))
pocket10 = body.newObject("PartDesign::Pocket", "Pocket009")
pocket10.Profile = sketch12
pocket10.Length = 3
pocket10.Reversed = True

doc.recompute()
